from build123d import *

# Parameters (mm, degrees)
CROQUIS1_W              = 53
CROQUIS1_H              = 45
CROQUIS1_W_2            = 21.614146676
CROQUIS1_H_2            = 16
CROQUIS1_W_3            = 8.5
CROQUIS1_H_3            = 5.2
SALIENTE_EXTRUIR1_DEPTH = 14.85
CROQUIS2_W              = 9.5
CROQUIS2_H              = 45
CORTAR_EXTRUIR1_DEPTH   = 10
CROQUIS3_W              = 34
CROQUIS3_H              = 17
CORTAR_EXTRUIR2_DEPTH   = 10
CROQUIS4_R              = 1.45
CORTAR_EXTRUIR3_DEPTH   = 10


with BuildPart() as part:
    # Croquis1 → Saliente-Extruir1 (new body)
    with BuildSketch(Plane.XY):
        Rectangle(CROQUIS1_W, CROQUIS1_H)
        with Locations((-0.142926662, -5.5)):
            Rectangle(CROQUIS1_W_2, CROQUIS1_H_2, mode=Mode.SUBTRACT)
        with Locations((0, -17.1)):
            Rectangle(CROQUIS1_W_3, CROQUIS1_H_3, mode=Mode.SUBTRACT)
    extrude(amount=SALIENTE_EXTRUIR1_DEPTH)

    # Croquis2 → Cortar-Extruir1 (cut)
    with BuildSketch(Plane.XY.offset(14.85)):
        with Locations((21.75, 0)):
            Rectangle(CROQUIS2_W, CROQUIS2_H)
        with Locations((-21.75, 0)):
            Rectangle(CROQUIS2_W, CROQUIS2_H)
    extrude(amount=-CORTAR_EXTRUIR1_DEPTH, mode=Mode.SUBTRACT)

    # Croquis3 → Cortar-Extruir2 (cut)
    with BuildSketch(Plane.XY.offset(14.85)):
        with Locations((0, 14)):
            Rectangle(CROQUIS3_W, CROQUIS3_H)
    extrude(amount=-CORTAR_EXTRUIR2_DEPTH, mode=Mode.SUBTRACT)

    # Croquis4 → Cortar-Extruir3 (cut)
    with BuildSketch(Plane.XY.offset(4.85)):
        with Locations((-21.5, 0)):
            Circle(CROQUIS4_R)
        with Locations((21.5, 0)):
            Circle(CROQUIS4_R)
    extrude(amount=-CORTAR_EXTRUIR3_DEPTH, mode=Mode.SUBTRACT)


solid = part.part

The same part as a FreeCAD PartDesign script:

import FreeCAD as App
import Part
import Sketcher

V = App.Vector
Q = App.Units.Quantity

doc = App.newDocument("Part")
body = doc.addObject("PartDesign::Body", "Body")

sketch1 = body.newObject("Sketcher::SketchObject", "Sketch")
sketch1.AttachmentSupport = (doc.getObject("XY_Plane"), [""])
sketch1.MapMode = "FlatFace"
sketch1.addGeometry([
    Part.LineSegment(V(-26, 22, 0), V(-26, -22, 0)),
    Part.LineSegment(V(-26, -22, 0), V(26, -22, 0)),
    Part.LineSegment(V(26, -22, 0), V(26, 22, 0)),
    Part.LineSegment(V(26, 22, 0), V(-26, 22, 0)),
    Part.LineSegment(V(4, -20, 0), V(-4, -20, 0)),
    Part.LineSegment(V(-4, -20, 0), V(-4, -14, 0)),
    Part.LineSegment(V(-4, -14, 0), V(4, -14, 0)),
    Part.LineSegment(V(4, -14, 0), V(4, -20, 0)),
    Part.LineSegment(V(11, -14, 0), V(-11, -14, 0)),
    Part.LineSegment(V(-11, -14, 0), V(-11, 2, 0)),
    Part.LineSegment(V(-11, 2, 0), V(11, 2, 0)),
    Part.LineSegment(V(11, 2, 0), V(11, -14, 0)),
], False)
sketch1.addConstraint([
    Sketcher.Constraint("Coincident", 0, 2, 1, 1),
    Sketcher.Constraint("Coincident", 1, 2, 2, 1),
    Sketcher.Constraint("Coincident", 2, 2, 3, 1),
    Sketcher.Constraint("Coincident", 3, 2, 0, 1),
    Sketcher.Constraint("Coincident", 4, 2, 5, 1),
    Sketcher.Constraint("Coincident", 5, 2, 6, 1),
    Sketcher.Constraint("Coincident", 6, 2, 7, 1),
    Sketcher.Constraint("Coincident", 7, 2, 4, 1),
    Sketcher.Constraint("Coincident", 8, 2, 9, 1),
    Sketcher.Constraint("Coincident", 9, 2, 10, 1),
    Sketcher.Constraint("Coincident", 10, 2, 11, 1),
    Sketcher.Constraint("Coincident", 11, 2, 8, 1),
    Sketcher.Constraint("Vertical", 0),
    Sketcher.Constraint("Horizontal", 1),
    Sketcher.Constraint("Vertical", 2),
    Sketcher.Constraint("Horizontal", 3),
    Sketcher.Constraint("Horizontal", 4),
    Sketcher.Constraint("Vertical", 5),
    Sketcher.Constraint("Horizontal", 6),
    Sketcher.Constraint("Vertical", 7),
    Sketcher.Constraint("Horizontal", 8),
    Sketcher.Constraint("Vertical", 9),
    Sketcher.Constraint("Horizontal", 10),
    Sketcher.Constraint("Vertical", 11),
    Sketcher.Constraint("Symmetric", 0, 2, 2, 2, -1, 1),
    Sketcher.Constraint("DistanceX", 1, 1, 1, 2, Q("53 mm")),
    Sketcher.Constraint("DistanceY", 0, 2, 0, 1, Q("45 mm")),
    Sketcher.Constraint("DistanceY", 9, 1, 9, 2, Q("16 mm")),
    Sketcher.Constraint("DistanceX", 4, 2, 4, 1, Q("8.5 mm")),
    Sketcher.Constraint("DistanceY", 5, 1, 5, 2, Q("5.2 mm")),
    Sketcher.Constraint("DistanceY", 0, 2, 5, 2, Q("8 mm")),
    Sketcher.Constraint("DistanceY", 5, 2, 8, 2, Q("1 mm")),
    Sketcher.Constraint("DistanceX", 8, 2, 5, 2, Q("6.7 mm")),
    Sketcher.Constraint("DistanceX", 4, 2, -1, 1, Q("4.25 mm")),
    Sketcher.Constraint("DistanceX", 8, 2, 8, 1, Q("21.614147 mm")),
])
pad1 = body.newObject("PartDesign::Pad", "Pad")
pad1.Profile = sketch1
pad1.Length = 14.85

sketch2 = body.newObject("Sketcher::SketchObject", "Sketch001")
sketch2.AttachmentSupport = (doc.getObject("XY_Plane"), [""])
sketch2.MapMode = "FlatFace"
sketch2.AttachmentOffset = App.Placement(V(0, 0, 14.85), App.Rotation())
sketch2.addGeometry([
    Part.LineSegment(V(17, 22, 0), V(17, -22, 0)),
    Part.LineSegment(V(17, -22, 0), V(26, -22, 0)),
    Part.LineSegment(V(26, -22, 0), V(26, 22, 0)),
    Part.LineSegment(V(26, 22, 0), V(17, 22, 0)),
    Part.LineSegment(V(-26, 22, 0), V(-26, -22, 0)),
    Part.LineSegment(V(-26, -22, 0), V(-17, -22, 0)),
    Part.LineSegment(V(-17, -22, 0), V(-17, 22, 0)),
    Part.LineSegment(V(-17, 22, 0), V(-26, 22, 0)),
], False)
sketch2.addConstraint([
    Sketcher.Constraint("Coincident", 0, 2, 1, 1),
    Sketcher.Constraint("Coincident", 1, 2, 2, 1),
    Sketcher.Constraint("Coincident", 2, 2, 3, 1),
    Sketcher.Constraint("Coincident", 3, 2, 0, 1),
    Sketcher.Constraint("Coincident", 4, 2, 5, 1),
    Sketcher.Constraint("Coincident", 5, 2, 6, 1),
    Sketcher.Constraint("Coincident", 6, 2, 7, 1),
    Sketcher.Constraint("Coincident", 7, 2, 4, 1),
    Sketcher.Constraint("Vertical", 0),
    Sketcher.Constraint("Horizontal", 1),
    Sketcher.Constraint("Vertical", 2),
    Sketcher.Constraint("Horizontal", 3),
    Sketcher.Constraint("Vertical", 4),
    Sketcher.Constraint("Horizontal", 5),
    Sketcher.Constraint("Vertical", 6),
    Sketcher.Constraint("Horizontal", 7),
    Sketcher.Constraint("Symmetric", 2, 2, 4, 2, -1, 1),
    Sketcher.Constraint("Symmetric", 0, 2, 6, 2, -1, 1),
    Sketcher.Constraint("Horizontal", 1, 2, 4, 2),
    Sketcher.Constraint("DistanceY", 0, 2, 0, 1, Q("45 mm")),
    Sketcher.Constraint("DistanceX", 1, 1, 1, 2, Q("9.5 mm")),
    Sketcher.Constraint("DistanceX", -1, 1, 0, 2, Q("17 mm")),
])
pocket1 = body.newObject("PartDesign::Pocket", "Pocket")
pocket1.Profile = sketch2
pocket1.Length = 10

sketch3 = body.newObject("Sketcher::SketchObject", "Sketch002")
sketch3.AttachmentSupport = (doc.getObject("XY_Plane"), [""])
sketch3.MapMode = "FlatFace"
sketch3.AttachmentOffset = App.Placement(V(0, 0, 14.85), App.Rotation())
sketch3.addGeometry([
    Part.LineSegment(V(-17, 22, 0), V(-17, 6, 0)),
    Part.LineSegment(V(-17, 6, 0), V(17, 6, 0)),
    Part.LineSegment(V(17, 6, 0), V(17, 22, 0)),
    Part.LineSegment(V(17, 22, 0), V(-17, 22, 0)),
], False)
sketch3.addConstraint([
    Sketcher.Constraint("Coincident", 0, 2, 1, 1),
    Sketcher.Constraint("Coincident", 1, 2, 2, 1),
    Sketcher.Constraint("Coincident", 2, 2, 3, 1),
    Sketcher.Constraint("Coincident", 3, 2, 0, 1),
    Sketcher.Constraint("Vertical", 0),
    Sketcher.Constraint("Horizontal", 1),
    Sketcher.Constraint("Vertical", 2),
    Sketcher.Constraint("Horizontal", 3),
    Sketcher.Constraint("DistanceX", 1, 1, 1, 2, Q("34 mm")),
    Sketcher.Constraint("DistanceY", 0, 2, 0, 1, Q("17 mm")),
    Sketcher.Constraint("DistanceX", 0, 2, -1, 1, Q("17 mm")),
    Sketcher.Constraint("DistanceY", -1, 1, 0, 2, Q("5.5 mm")),
])
pocket2 = body.newObject("PartDesign::Pocket", "Pocket001")
pocket2.Profile = sketch3
pocket2.Length = 10

sketch4 = body.newObject("Sketcher::SketchObject", "Sketch003")
sketch4.AttachmentSupport = (doc.getObject("XY_Plane"), [""])
sketch4.MapMode = "FlatFace"
sketch4.AttachmentOffset = App.Placement(V(0, 0, 4.85), App.Rotation())
sketch4.addGeometry([
    Part.Circle(V(-21.5, 0, 0), V(0, 0, 1), 1.4),
    Part.Circle(V(21.5, 0, 0), V(0, 0, 1), 1.4),
], False)
sketch4.addConstraint([
    Sketcher.Constraint("Equal", 0, 1),
    Sketcher.Constraint("Symmetric", 0, 3, 1, 3, -1, 1),
    Sketcher.Constraint("PointOnObject", 0, 3, -1),
    Sketcher.Constraint("Diameter", 0, Q("2.9 mm")),
    Sketcher.Constraint("DistanceX", 0, 3, 1, 3, Q("43 mm")),
])
pocket3 = body.newObject("PartDesign::Pocket", "Pocket002")
pocket3.Profile = sketch4
pocket3.Length = 10

doc.recompute()
